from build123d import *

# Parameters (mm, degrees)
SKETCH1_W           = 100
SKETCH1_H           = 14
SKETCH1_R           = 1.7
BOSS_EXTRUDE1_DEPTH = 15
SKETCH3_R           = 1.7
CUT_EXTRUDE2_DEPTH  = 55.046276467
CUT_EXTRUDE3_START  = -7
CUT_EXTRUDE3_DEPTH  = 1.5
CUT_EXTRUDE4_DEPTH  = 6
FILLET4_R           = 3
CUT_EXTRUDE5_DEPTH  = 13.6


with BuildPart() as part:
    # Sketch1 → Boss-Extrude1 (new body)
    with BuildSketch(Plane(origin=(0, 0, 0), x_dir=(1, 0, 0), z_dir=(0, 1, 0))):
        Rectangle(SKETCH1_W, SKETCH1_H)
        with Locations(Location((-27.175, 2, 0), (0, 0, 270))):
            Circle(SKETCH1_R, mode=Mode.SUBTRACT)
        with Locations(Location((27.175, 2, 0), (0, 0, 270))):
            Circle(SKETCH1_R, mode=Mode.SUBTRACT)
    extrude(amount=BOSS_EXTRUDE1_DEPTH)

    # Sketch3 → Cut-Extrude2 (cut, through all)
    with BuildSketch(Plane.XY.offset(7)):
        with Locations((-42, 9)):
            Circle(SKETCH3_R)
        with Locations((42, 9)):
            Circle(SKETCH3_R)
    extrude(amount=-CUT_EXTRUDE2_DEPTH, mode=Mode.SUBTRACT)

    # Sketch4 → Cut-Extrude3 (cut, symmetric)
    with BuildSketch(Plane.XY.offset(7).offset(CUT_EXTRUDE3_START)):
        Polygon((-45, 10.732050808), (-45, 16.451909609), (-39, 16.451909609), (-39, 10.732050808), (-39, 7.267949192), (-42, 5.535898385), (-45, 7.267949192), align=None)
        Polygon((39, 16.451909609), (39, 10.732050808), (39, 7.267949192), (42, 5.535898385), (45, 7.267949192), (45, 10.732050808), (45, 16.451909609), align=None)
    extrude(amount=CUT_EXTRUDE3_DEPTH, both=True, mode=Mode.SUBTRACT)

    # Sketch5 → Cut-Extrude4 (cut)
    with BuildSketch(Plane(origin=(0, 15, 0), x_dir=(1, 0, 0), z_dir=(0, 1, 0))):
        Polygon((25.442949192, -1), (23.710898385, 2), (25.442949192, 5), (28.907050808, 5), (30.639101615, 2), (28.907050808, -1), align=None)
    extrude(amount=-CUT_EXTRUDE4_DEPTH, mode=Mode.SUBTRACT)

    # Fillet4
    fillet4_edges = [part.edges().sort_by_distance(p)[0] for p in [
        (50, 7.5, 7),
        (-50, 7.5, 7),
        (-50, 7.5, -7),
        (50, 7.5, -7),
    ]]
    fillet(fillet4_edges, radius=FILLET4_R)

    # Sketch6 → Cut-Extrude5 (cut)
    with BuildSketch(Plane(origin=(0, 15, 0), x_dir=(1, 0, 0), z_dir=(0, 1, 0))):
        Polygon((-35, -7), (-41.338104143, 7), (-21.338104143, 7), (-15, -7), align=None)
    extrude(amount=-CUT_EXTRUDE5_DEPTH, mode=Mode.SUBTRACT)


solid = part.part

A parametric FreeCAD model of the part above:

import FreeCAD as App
import Part
import Sketcher
Q = App.Units.Quantity


def edges_at(feature, points):
    """Names of the edges that pass closest to the given points."""
    edges = feature.Shape.Edges
    near = lambda p: min(range(len(edges)), key=lambda i: edges[i].distToShape(Part.Vertex(*p))[0])
    return sorted({f"Edge{near(p) + 1}" for p in points})


def add_polygon(sketch, points):
    """Adds a closed chain of lines whose ends are joined by coincident constraints."""
    first, n = sketch.GeometryCount, len(points)
    for a, b in zip(points, points[1:] + points[:1]):
        sketch.addGeometry(Part.LineSegment(App.Vector(*a, 0), App.Vector(*b, 0)), False)
    for i in range(n):
        sketch.addConstraint(Sketcher.Constraint("Coincident", first + i, 2, first + (i + 1) % n, 1))

doc = App.newDocument("Part")
body = doc.addObject("PartDesign::Body", "Body")

sketch1 = body.newObject("Sketcher::SketchObject", "Sketch")
sketch1.AttachmentSupport = (doc.getObject("XZ_Plane"), [""])
sketch1.MapMode = "FlatFace"
add_polygon(sketch1, [(-50, -7), (-50, 7), (50, 7), (50, -7)])
sketch1.addGeometry(Part.Circle(App.Vector(-27.175, -2, 0), App.Vector(0, 0, 1), 1.7), False)
sketch1.addGeometry(Part.Circle(App.Vector(27.175, -2, 0), App.Vector(0, 0, 1), 1.7), False)
sketch1.addConstraint(Sketcher.Constraint("Vertical", 0))
sketch1.addConstraint(Sketcher.Constraint("Horizontal", 1))
sketch1.addConstraint(Sketcher.Constraint("Vertical", 2))
sketch1.addConstraint(Sketcher.Constraint("Horizontal", 3))
sketch1.addConstraint(Sketcher.Constraint("Equal", 4, 5))
sketch1.addConstraint(Sketcher.Constraint("Symmetric", 0, 2, 2, 2, -1, 1))
sketch1.addConstraint(Sketcher.Constraint("Symmetric", 4, 3, 5, 3, -2))
sketch1.addConstraint(Sketcher.Constraint("Diameter", 4, 3.4))
sketch1.addConstraint(Sketcher.Constraint("DistanceX", 1, 1, 1, 2, 100.0))
sketch1.addConstraint(Sketcher.Constraint("DistanceY", 0, 1, 0, 2, 14.0))
sketch1.addConstraint(Sketcher.Constraint("DistanceY", 4, 3, -1, 1, 2.0))
sketch1.addConstraint(Sketcher.Constraint("DistanceX", 4, 3, 5, 3, 54.35))
pad1 = body.newObject("PartDesign::Pad", "Pad")
pad1.Profile = sketch1
pad1.Length = 15
pad1.Reversed = True

sketch2 = body.newObject("Sketcher::SketchObject", "Sketch001")
sketch2.AttachmentSupport = (doc.getObject("XY_Plane"), [""])
sketch2.MapMode = "FlatFace"
sketch2.AttachmentOffset = App.Placement(App.Vector(0, 0, 7), App.Rotation())
sketch2.addGeometry(Part.Circle(App.Vector(-42, 9, 0), App.Vector(0, 0, 1), 1.7), False)
sketch2.addGeometry(Part.Circle(App.Vector(42, 9, 0), App.Vector(0, 0, 1), 1.7), False)
sketch2.addConstraint(Sketcher.Constraint("Equal", 0, 1))
sketch2.addConstraint(Sketcher.Constraint("Symmetric", 0, 3, 1, 3, -2))
sketch2.addConstraint(Sketcher.Constraint("Diameter", 0, 3.4))
sketch2.addConstraint(Sketcher.Constraint("DistanceX", 0, 3, -1, 1, 42.0))
sketch2.addConstraint(Sketcher.Constraint("DistanceY", -1, 1, 0, 3, 9.0))
pocket1 = body.newObject("PartDesign::Pocket", "Pocket")
pocket1.Profile = sketch2
pocket1.Type = "ThroughAll"

sketch3 = body.newObject("Sketcher::SketchObject", "Sketch002")
sketch3.AttachmentSupport = (doc.getObject("XY_Plane"), [""])
sketch3.MapMode = "FlatFace"
add_polygon(sketch3, [(-45, 16.45191), (-45, 7.267949), (-42, 5.535898), (-39, 7.267949), (-39, 16.45191)])
add_polygon(sketch3, [(39, 16.45191), (39, 7.267949), (42, 5.535898), (45, 7.267949), (45, 16.45191)])
sketch3.addConstraint(Sketcher.Constraint("Vertical", 0))
sketch3.addConstraint(Sketcher.Constraint("Vertical", 3))
sketch3.addConstraint(Sketcher.Constraint("Horizontal", 4))
sketch3.addConstraint(Sketcher.Constraint("Vertical", 5))
sketch3.addConstraint(Sketcher.Constraint("Vertical", 8))
sketch3.addConstraint(Sketcher.Constraint("Horizontal", 9))
sketch3.addConstraint(Sketcher.Constraint("Symmetric", 2, 2, 5, 2, -2))
sketch3.addConstraint(Sketcher.Constraint("Symmetric", 1, 2, 6, 2, -2))
sketch3.addConstraint(Sketcher.Constraint("Symmetric", 0, 2, 7, 2, -2))
sketch3.addConstraint(Sketcher.Constraint("Parallel", 1, 6))
sketch3.addConstraint(Sketcher.Constraint("Horizontal", 0, 2, 2, 2))
sketch3.addConstraint(Sketcher.Constraint("Horizontal", 4, 2, 8, 2))
sketch3.addConstraint(Sketcher.Constraint("DistanceX", 4, 2, 4, 1, 6.0))
sketch3.addConstraint(Sketcher.Constraint("Angle", 1, Q("-30 deg")))
sketch3.addConstraint(Sketcher.Constraint("DistanceX", 0, 2, -1, 1, 45.0))
sketch3.addConstraint(Sketcher.Constraint("DistanceY", 0, 2, 0, 1, 9.18396))
sketch3.addConstraint(Sketcher.Constraint("DistanceY", -1, 1, 1, 2, 5.535898))
pocket2 = body.newObject("PartDesign::Pocket", "Pocket001")
pocket2.Profile = sketch3
pocket2.Length = 3
pocket2.Midplane = True

sketch4 = body.newObject("Sketcher::SketchObject", "Sketch003")
sketch4.AttachmentSupport = (doc.getObject("XZ_Plane"), [""])
sketch4.MapMode = "FlatFace"
sketch4.AttachmentOffset = App.Placement(App.Vector(0, 0, -15), App.Rotation())
add_polygon(sketch4, [(23.710898, -2), (25.442949, 1), (28.907051, 1), (30.639102, -2), (28.907051, -5), (25.442949, -5)])
sketch4.addConstraint(Sketcher.Constraint("Horizontal", 1))
sketch4.addConstraint(Sketcher.Constraint("Horizontal", 4))
sketch4.addConstraint(Sketcher.Constraint("Parallel", 0, 3))
sketch4.addConstraint(Sketcher.Constraint("Parallel", 2, 5))
sketch4.addConstraint(Sketcher.Constraint("Horizontal", 2, 2, 5, 2))
sketch4.addConstraint(Sketcher.Constraint("Vertical", 1, 2, 3, 2))
sketch4.addConstraint(Sketcher.Constraint("Vertical", 0, 2, 4, 2))
sketch4.addConstraint(Sketcher.Constraint("Angle", 0, Q("60 deg")))
sketch4.addConstraint(Sketcher.Constraint("DistanceY", -1, 1, 0, 2, 1.0))
sketch4.addConstraint(Sketcher.Constraint("DistanceY", 2, 2, -1, 1, 2.0))
sketch4.addConstraint(Sketcher.Constraint("DistanceX", 1, 1, 1, 2, 3.464102))
sketch4.addConstraint(Sketcher.Constraint("DistanceX", -1, 1, 2, 2, 30.639102))
pocket3 = body.newObject("PartDesign::Pocket", "Pocket002")
pocket3.Profile = sketch4
pocket3.Length = 6
pocket3.Reversed = True
doc.recompute()

fillet = body.newObject("PartDesign::Fillet", "Fillet")
fillet.Base = (pocket3, edges_at(pocket3, [
    (50, 7.5, 7),
    (-50, 7.5, 7),
    (-50, 7.5, -7),
    (50, 7.5, -7),
]))
fillet.Radius = 3

sketch5 = body.newObject("Sketcher::SketchObject", "Sketch004")
sketch5.AttachmentSupport = (doc.getObject("XZ_Plane"), [""])
sketch5.MapMode = "FlatFace"
sketch5.AttachmentOffset = App.Placement(App.Vector(0, 0, -15), App.Rotation())
add_polygon(sketch5, [(-41.338104, -7), (-35, 7), (-15, 7), (-21.338104, -7)])
sketch5.addConstraint(Sketcher.Constraint("Horizontal", 1))
sketch5.addConstraint(Sketcher.Constraint("Horizontal", 3))
sketch5.addConstraint(Sketcher.Constraint("Parallel", 0, 2))
sketch5.addConstraint(Sketcher.Constraint("DistanceX", 1, 1, 1, 2, 20.0))
sketch5.addConstraint(Sketcher.Constraint("DistanceX", 0, 2, -1, 1, 35.0))
sketch5.addConstraint(Sketcher.Constraint("DistanceY", -1, 1, 0, 2, 7.0))
sketch5.addConstraint(Sketcher.Constraint("DistanceY", 2, 2, -1, 1, 7.0))
sketch5.addConstraint(Sketcher.Constraint("Distance", 0, 15.367874))
pocket4 = body.newObject("PartDesign::Pocket", "Pocket003")
pocket4.Profile = sketch5
pocket4.Length = 13.6
pocket4.Reversed = True

doc.recompute()
